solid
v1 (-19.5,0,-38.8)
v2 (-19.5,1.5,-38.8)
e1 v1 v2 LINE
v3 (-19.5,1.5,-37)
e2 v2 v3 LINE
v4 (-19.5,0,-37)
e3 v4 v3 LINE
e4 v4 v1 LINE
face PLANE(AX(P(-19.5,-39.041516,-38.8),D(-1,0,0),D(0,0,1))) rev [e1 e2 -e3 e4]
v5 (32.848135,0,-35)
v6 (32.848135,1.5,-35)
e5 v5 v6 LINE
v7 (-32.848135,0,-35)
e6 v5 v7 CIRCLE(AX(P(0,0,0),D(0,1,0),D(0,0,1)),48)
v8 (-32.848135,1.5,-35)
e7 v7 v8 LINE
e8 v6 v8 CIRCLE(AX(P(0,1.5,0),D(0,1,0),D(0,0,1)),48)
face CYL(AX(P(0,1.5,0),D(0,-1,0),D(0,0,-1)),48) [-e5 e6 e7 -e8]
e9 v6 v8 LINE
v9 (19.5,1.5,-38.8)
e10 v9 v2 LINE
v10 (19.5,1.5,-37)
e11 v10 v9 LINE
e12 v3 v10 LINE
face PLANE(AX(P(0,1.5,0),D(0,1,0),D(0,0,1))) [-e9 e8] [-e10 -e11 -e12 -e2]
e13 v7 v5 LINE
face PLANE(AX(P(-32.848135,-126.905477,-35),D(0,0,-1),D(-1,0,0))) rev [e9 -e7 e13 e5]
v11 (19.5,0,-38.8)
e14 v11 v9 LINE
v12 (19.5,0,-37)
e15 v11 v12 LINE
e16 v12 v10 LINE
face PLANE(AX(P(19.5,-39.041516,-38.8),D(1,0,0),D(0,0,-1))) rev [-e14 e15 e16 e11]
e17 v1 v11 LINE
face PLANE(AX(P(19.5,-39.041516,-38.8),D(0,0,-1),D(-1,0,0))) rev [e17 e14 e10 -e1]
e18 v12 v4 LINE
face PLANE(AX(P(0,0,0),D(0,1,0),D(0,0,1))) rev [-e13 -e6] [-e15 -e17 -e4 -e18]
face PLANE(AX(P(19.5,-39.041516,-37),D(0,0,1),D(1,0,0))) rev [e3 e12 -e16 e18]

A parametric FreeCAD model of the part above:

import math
import FreeCAD as App
import Part
import Sketcher

V = App.Vector
Q = App.Units.Quantity


def add_polygon(sketch, points):
    """Adds a closed chain of lines whose ends are joined by coincident constraints."""
    first, n = sketch.GeometryCount, len(points)
    for a, b in zip(points, points[1:] + points[:1]):
        sketch.addGeometry(Part.LineSegment(App.Vector(*a, 0), App.Vector(*b, 0)), False)
    for i in range(n):
        sketch.addConstraint(Sketcher.Constraint("Coincident", first + i, 2, first + (i + 1) % n, 1))

doc = App.newDocument("Part")
body = doc.addObject("PartDesign::Body", "Body")

# Sketch on XZ plane
sketch1 = body.newObject("Sketcher::SketchObject", "Sketch")
sketch1.AttachmentSupport = (doc.getObject("XZ_Plane"), [""])
sketch1.MapMode = "FlatFace"
sketch1.addGeometry(Part.Circle(V(0, 0, 0), V(0, 0, 1), 48), False)
sketch1.addConstraint([
    Sketcher.Constraint("Coincident", 0, 3, -1, 1),
    Sketcher.Constraint("Diameter", 0, Q("96 mm")),
])
pad1 = body.newObject("PartDesign::Pad", "Pad")
pad1.Profile = sketch1
pad1.Length = 1.5
pad1.Reversed = True

# Sketch on XZ plane
sketch2 = body.newObject("Sketcher::SketchObject", "Sketch001")
sketch2.AttachmentSupport = (doc.getObject("XZ_Plane"), [""])
sketch2.MapMode = "FlatFace"
sketch2.addGeometry([
    Part.LineSegment(V(33, -35, 0), V(-33, -35, 0)),
    Part.ArcOfCircle(Part.Circle(V(0, 0, 0), V(0, 0, 1), 48), math.radians(-47), math.radians(227)),
], False)
sketch2.addConstraint([
    Sketcher.Constraint("Coincident", 0, 1, 1, 1),
    Sketcher.Constraint("Coincident", 1, 2, 0, 2),
    Sketcher.Constraint("Horizontal", 0),
    Sketcher.Constraint("Coincident", 1, 3, -1, 1),
    Sketcher.Constraint("Radius", 1, Q("48 mm")),
    Sketcher.Constraint("DistanceY", 0, 1, -1, 1, Q("35 mm")),
])
pocket1 = body.newObject("PartDesign::Pocket", "Pocket")
pocket1.Profile = sketch2
pocket1.Length = 1.5

# Sketch on XZ plane
sketch3 = body.newObject("Sketcher::SketchObject", "Sketch002")
sketch3.AttachmentSupport = (doc.getObject("XZ_Plane"), [""])
sketch3.MapMode = "FlatFace"
sketch3.AttachmentOffset = App.Placement(V(0, 0, -1.5), App.Rotation())
add_polygon(sketch3, [(-19.5, -38.8), (-19.5, -37), (19.5, -37), (19.5, -38.8)])  # lines 0-3
sketch3.addConstraint([
    Sketcher.Constraint("Vertical", 0),
    Sketcher.Constraint("Horizontal", 1),
    Sketcher.Constraint("Vertical", 2),
    Sketcher.Constraint("Horizontal", 3),
    Sketcher.Constraint("DistanceX", 1, 1, 1, 2, Q("39 mm")),
    Sketcher.Constraint("DistanceY", 0, 1, 0, 2, Q("1.8 mm")),
    Sketcher.Constraint("DistanceY", 0, 2, -1, 1, Q("37 mm")),
    Sketcher.Constraint("DistanceX", 0, 2, -1, 1, Q("19.5 mm")),
])
pocket2 = body.newObject("PartDesign::Pocket", "Pocket001")
pocket2.Profile = sketch3
pocket2.Length = 1.5
pocket2.Reversed = True

doc.recompute()
